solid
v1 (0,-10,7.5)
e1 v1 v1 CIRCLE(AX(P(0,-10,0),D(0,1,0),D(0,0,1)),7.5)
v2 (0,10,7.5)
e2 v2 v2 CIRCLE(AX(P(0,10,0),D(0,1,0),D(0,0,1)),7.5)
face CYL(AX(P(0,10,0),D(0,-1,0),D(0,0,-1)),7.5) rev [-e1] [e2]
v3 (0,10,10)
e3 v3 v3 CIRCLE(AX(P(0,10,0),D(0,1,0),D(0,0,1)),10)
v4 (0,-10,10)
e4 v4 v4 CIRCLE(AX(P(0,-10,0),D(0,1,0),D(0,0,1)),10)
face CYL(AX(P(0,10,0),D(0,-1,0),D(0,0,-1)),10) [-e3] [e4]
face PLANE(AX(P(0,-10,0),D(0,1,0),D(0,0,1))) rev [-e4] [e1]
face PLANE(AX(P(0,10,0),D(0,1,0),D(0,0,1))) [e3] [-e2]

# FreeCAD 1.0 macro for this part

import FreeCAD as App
import Part
import Sketcher
from FreeCAD import Vector

doc = App.newDocument("Part")
body = doc.addObject("PartDesign::Body", "Body")

# Sketch on XZ plane
sketch1 = body.newObject("Sketcher::SketchObject", "Sketch")
sketch1.AttachmentSupport = (doc.getObject("XZ_Plane"), [""])
sketch1.MapMode = "FlatFace"
sketch1.addGeometry([
    Part.Circle(Vector(0, 0, 0), Vector(0, 0, 1), 10),
    Part.Circle(Vector(0, 0, 0), Vector(0, 0, 1), 8),
], False)
sketch1.addConstraint([
    Sketcher.Constraint("Coincident", 0, 3, -1, 1),
    Sketcher.Constraint("Coincident", 1, 3, -1, 1),
    Sketcher.Constraint("Diameter", 0, 20.0),
    Sketcher.Constraint("Diameter", 1, 15.0),
])
pad1 = body.newObject("PartDesign::Pad", "Pad")
pad1.Profile = sketch1
pad1.Length = 20
pad1.Midplane = True

doc.recompute()
